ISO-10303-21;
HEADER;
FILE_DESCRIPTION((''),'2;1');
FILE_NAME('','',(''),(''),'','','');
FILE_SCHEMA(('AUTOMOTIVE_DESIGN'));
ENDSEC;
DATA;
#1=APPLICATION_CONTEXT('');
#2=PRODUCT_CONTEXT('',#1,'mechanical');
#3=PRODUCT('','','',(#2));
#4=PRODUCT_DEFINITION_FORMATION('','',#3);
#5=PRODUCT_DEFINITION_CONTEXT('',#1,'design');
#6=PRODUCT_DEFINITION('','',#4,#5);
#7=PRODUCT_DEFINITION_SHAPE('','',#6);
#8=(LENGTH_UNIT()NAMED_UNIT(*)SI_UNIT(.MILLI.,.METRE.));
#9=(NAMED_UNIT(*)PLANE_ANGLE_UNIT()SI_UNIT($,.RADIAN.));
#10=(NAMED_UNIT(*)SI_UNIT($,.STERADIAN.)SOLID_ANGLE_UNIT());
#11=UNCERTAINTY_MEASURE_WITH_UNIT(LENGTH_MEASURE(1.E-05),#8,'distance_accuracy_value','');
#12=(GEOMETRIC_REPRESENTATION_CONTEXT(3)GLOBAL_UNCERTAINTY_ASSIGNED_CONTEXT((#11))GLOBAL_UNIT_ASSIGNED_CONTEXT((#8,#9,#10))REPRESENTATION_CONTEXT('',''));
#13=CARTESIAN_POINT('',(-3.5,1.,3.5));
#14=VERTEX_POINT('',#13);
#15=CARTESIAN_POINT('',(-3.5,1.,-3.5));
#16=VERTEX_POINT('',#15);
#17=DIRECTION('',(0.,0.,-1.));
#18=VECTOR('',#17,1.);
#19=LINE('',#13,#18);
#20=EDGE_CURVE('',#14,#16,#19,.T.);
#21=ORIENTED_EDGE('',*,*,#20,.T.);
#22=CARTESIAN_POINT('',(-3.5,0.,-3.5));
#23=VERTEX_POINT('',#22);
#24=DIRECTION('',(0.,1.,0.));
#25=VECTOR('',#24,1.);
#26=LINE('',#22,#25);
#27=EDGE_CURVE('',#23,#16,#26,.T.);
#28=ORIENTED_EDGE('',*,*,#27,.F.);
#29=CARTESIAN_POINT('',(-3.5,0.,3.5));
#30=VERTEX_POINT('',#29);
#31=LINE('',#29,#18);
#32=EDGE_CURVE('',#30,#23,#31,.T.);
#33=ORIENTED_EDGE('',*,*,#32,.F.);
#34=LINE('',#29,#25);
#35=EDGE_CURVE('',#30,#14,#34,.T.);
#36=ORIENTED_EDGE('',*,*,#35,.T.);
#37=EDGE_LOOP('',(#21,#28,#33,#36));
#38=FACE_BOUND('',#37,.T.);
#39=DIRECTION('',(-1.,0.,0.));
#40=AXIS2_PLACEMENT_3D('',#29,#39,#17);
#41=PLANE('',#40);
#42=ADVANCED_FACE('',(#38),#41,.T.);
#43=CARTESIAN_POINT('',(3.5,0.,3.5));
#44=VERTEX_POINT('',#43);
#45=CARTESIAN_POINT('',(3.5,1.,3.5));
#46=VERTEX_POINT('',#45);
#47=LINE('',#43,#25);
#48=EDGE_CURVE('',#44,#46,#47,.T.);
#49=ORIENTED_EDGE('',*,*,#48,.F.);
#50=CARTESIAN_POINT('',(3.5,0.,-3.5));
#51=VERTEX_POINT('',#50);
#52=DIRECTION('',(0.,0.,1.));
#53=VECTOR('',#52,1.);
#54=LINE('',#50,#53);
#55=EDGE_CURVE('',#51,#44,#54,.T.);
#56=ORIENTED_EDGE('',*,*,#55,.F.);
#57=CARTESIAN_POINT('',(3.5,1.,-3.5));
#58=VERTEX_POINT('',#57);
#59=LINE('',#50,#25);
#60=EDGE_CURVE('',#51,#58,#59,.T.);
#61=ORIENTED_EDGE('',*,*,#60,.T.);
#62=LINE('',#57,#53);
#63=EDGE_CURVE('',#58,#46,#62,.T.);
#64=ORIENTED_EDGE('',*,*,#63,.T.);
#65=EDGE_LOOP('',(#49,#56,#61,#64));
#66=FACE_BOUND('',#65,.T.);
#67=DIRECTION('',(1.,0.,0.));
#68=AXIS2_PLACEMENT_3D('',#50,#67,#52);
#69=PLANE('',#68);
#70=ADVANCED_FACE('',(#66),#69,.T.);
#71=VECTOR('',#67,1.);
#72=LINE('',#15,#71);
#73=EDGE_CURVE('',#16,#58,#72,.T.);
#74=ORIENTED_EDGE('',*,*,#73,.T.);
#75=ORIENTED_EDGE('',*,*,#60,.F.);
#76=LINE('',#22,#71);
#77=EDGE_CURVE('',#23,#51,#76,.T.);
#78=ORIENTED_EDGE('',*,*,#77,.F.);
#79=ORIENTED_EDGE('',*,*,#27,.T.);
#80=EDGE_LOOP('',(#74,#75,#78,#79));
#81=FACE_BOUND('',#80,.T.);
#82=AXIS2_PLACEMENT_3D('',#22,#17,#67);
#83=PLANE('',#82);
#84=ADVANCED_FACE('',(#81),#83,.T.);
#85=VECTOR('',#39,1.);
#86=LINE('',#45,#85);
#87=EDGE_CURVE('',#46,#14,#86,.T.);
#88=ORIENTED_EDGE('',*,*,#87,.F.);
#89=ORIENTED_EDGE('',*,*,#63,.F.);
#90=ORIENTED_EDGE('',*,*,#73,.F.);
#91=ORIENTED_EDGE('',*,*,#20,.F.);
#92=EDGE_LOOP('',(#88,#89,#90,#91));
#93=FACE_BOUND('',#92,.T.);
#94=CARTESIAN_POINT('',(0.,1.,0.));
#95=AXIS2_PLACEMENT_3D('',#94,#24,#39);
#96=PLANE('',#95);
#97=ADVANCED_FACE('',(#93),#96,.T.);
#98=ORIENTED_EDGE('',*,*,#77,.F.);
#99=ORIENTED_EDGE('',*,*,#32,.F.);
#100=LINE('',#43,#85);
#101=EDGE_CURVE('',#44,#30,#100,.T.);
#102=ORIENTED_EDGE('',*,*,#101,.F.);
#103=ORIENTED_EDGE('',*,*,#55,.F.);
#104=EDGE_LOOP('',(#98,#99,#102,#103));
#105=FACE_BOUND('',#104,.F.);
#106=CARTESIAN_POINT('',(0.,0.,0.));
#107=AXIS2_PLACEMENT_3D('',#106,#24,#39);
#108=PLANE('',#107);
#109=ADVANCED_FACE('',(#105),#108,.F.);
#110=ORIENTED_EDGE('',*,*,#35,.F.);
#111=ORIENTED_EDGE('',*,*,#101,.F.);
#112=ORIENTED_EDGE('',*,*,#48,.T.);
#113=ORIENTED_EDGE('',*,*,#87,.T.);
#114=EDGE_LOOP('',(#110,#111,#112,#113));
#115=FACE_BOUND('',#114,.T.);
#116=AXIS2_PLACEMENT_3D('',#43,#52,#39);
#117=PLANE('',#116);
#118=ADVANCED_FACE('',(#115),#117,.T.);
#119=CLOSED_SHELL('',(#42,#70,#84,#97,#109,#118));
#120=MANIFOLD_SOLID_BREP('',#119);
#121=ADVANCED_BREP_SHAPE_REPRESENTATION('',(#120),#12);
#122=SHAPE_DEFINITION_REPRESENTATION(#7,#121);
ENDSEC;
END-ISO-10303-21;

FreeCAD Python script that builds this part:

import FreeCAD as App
import Part
import Sketcher

V = App.Vector


def add_polygon(sketch, points):
    """Adds a closed chain of lines whose ends are joined by coincident constraints."""
    first, n = sketch.GeometryCount, len(points)
    for a, b in zip(points, points[1:] + points[:1]):
        sketch.addGeometry(Part.LineSegment(App.Vector(*a, 0), App.Vector(*b, 0)), False)
    for i in range(n):
        sketch.addConstraint(Sketcher.Constraint("Coincident", first + i, 2, first + (i + 1) % n, 1))

doc = App.newDocument("Part")
body = doc.addObject("PartDesign::Body", "Body")

sketch1 = body.newObject("Sketcher::SketchObject", "Sketch")
sketch1.AttachmentSupport = (doc.getObject("XZ_Plane"), [""])
sketch1.MapMode = "FlatFace"
add_polygon(sketch1, [(-4, 4), (4, 4), (4, -4), (-4, -4)])
sketch1.addConstraint(Sketcher.Constraint("Horizontal", 0))
sketch1.addConstraint(Sketcher.Constraint("Vertical", 1))
sketch1.addConstraint(Sketcher.Constraint("Horizontal", 2))
sketch1.addConstraint(Sketcher.Constraint("Vertical", 3))
sketch1.addConstraint(Sketcher.Constraint("Symmetric", 0, 2, 2, 2, -1, 1))
sketch1.addConstraint(Sketcher.Constraint("Equal", 2, 1))
sketch1.addConstraint(Sketcher.Constraint("DistanceX", 0, 1, 0, 2, 7.0))
pad1 = body.newObject("PartDesign::Pad", "Pad")
pad1.Profile = sketch1
pad1.Length = 1
pad1.Reversed = True

doc.recompute()
